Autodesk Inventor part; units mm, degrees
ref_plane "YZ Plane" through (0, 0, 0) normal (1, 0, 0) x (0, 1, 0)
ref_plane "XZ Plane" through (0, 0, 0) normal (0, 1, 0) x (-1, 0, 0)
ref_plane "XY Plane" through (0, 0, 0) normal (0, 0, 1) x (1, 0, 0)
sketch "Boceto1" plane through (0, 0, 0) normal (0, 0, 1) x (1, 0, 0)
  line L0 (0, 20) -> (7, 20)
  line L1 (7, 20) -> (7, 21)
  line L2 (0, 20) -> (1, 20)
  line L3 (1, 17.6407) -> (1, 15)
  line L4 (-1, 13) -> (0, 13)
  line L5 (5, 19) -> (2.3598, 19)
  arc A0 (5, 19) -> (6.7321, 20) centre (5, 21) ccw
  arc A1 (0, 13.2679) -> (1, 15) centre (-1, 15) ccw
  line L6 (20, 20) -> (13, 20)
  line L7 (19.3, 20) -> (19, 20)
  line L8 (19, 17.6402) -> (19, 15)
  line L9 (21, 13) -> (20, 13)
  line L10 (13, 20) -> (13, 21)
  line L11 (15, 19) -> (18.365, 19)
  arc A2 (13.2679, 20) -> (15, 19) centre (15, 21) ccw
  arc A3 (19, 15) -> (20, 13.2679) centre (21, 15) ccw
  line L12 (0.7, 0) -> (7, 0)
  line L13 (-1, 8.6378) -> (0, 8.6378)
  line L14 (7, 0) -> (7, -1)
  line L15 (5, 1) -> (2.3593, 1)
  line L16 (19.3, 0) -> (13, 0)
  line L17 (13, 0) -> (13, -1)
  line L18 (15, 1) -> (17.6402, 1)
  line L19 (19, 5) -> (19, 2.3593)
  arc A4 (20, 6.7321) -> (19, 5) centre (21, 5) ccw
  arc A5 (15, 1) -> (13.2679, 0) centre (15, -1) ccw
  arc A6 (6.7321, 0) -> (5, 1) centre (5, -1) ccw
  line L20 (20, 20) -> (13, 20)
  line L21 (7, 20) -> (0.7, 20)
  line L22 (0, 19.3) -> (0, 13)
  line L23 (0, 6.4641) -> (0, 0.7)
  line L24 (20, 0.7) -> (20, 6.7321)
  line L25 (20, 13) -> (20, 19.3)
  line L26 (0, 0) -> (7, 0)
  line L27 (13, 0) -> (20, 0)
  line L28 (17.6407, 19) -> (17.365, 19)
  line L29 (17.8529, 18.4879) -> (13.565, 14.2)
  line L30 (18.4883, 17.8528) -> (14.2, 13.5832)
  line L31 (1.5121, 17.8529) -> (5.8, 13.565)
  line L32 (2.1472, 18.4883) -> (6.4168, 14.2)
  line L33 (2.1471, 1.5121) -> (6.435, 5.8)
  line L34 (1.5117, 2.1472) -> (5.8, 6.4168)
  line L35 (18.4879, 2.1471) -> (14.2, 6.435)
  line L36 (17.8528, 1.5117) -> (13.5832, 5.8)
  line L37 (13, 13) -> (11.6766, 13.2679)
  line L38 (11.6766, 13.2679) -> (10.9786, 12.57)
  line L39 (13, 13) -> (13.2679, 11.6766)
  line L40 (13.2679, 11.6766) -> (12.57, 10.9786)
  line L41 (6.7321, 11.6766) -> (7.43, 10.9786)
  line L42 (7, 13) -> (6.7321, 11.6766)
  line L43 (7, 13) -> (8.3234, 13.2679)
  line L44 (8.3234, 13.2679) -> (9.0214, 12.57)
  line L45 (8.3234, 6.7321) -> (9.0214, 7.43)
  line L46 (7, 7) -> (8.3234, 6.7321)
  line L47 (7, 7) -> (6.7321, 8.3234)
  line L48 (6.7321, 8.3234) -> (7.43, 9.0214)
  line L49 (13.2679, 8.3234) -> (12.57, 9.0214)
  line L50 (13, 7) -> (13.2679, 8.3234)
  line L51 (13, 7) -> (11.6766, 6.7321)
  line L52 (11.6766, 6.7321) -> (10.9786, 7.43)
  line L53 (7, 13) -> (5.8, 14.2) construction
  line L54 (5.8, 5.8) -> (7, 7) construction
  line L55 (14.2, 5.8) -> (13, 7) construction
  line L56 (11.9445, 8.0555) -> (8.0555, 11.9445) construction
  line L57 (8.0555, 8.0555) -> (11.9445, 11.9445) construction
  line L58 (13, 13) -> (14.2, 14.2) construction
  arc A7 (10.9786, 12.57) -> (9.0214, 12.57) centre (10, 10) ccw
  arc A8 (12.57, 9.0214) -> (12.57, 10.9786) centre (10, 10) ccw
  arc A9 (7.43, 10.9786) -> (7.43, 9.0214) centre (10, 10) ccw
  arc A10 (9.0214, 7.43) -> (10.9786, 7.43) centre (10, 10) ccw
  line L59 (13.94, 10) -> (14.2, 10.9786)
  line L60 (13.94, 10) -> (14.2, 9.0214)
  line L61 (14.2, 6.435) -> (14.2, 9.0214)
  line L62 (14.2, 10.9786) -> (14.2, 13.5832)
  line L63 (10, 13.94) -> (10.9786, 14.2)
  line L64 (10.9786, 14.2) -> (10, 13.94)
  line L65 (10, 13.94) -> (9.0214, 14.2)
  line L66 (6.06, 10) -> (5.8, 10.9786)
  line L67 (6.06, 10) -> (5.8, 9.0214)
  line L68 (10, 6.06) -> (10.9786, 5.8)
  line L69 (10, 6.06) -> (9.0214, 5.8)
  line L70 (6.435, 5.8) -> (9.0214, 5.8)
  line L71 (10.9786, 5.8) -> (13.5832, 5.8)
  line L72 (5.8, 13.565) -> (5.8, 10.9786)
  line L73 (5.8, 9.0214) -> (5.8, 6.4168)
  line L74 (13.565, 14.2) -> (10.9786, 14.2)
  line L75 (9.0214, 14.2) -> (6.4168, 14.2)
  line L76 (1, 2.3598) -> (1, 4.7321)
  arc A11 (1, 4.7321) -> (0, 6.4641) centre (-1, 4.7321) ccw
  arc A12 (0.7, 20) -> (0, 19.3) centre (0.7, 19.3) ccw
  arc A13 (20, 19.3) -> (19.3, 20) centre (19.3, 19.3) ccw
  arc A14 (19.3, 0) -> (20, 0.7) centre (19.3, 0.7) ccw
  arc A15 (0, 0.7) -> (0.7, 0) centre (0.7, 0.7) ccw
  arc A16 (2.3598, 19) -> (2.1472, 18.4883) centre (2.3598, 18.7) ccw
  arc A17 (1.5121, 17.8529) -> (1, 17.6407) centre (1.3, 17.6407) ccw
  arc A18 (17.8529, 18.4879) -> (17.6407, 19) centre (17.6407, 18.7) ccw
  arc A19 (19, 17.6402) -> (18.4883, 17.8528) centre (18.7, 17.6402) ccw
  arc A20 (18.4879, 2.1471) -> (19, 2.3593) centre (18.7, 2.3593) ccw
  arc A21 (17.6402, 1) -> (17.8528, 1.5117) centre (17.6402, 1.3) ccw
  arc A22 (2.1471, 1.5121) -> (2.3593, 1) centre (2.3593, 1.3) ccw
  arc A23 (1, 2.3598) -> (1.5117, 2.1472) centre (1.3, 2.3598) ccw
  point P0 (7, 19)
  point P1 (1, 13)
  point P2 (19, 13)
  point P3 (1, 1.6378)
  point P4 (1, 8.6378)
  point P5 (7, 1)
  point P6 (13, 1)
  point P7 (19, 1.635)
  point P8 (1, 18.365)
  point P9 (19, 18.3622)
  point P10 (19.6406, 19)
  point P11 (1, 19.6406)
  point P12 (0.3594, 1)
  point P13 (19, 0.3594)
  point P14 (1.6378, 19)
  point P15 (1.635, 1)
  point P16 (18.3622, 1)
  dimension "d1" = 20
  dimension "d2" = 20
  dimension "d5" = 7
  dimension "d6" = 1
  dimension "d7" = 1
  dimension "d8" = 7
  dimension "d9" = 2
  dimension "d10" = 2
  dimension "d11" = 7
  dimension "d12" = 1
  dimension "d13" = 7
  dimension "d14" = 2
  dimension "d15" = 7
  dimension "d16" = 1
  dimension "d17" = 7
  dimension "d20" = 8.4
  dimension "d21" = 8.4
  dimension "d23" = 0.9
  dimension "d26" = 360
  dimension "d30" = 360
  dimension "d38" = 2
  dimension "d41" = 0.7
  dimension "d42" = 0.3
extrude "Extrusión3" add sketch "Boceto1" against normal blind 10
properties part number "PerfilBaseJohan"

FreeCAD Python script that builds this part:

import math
import FreeCAD as App
import Part
import Sketcher

V = App.Vector
Q = App.Units.Quantity

doc = App.newDocument("Part")
body = doc.addObject("PartDesign::Body", "Body")

# Sketch on XY plane
sketch1 = body.newObject("Sketcher::SketchObject", "Sketch")
sketch1.AttachmentSupport = (doc.getObject("XY_Plane"), [""])
sketch1.MapMode = "FlatFace"
sketch1.addGeometry([
    Part.LineSegment(V(6.7321, 20, 0), V(0.7, 20, 0)),  # 0
    Part.ArcOfCircle(Part.Circle(V(0.7, 19.3, 0), V(0, 0, 1), 0.7), math.radians(90), math.radians(180)),  # 1
    Part.LineSegment(V(0, 19.3, 0), V(0, 13.2679, 0)),  # 2
    Part.ArcOfCircle(Part.Circle(V(-1, 15, 0), V(0, 0, 1), 2.000043), math.radians(-60.000705), math.radians(0)),  # 3
    Part.LineSegment(V(1, 15, 0), V(1, 17.6407, 0)),  # 4
    Part.ArcOfCircle(Part.Circle(V(1.3, 17.6407, 0), V(0, 0, 1), 0.300025), math.radians(45.013504), math.radians(180)),  # 5
    Part.LineSegment(V(1.5121, 17.8529, 0), V(5.8, 13.565, 0)),  # 6
    Part.LineSegment(V(5.8, 13.565, 0), V(5.8, 10.9786, 0)),  # 7
    Part.LineSegment(V(5.8, 10.9786, 0), V(6.06, 10, 0)),  # 8
    Part.LineSegment(V(6.06, 10, 0), V(5.8, 9.0214, 0)),  # 9
    Part.LineSegment(V(5.8, 9.0214, 0), V(5.8, 6.4168, 0)),  # 10
    Part.LineSegment(V(5.8, 6.4168, 0), V(1.5117, 2.1472, 0)),  # 11
    Part.ArcOfCircle(Part.Circle(V(1.3, 2.3598, 0), V(0, 0, 1), 0.3), math.radians(180), math.radians(314.878468)),  # 12
    Part.LineSegment(V(1, 2.3598, 0), V(1, 4.7321, 0)),  # 13
    Part.ArcOfCircle(Part.Circle(V(-1, 4.7321, 0), V(0, 0, 1), 2), math.radians(0), math.radians(59.999272)),  # 14
    Part.LineSegment(V(0, 6.4641, 0), V(0, 0.7, 0)),  # 15
    Part.ArcOfCircle(Part.Circle(V(0.7, 0.7, 0), V(0, 0, 1), 0.7), math.radians(180), math.radians(270)),  # 16
    Part.LineSegment(V(0.7, 0, 0), V(6.7321, 0, 0)),  # 17
    Part.ArcOfCircle(Part.Circle(V(5, -1, 0), V(0, 0, 1), 2.000043), math.radians(29.999295), math.radians(90)),  # 18
    Part.LineSegment(V(5, 1, 0), V(2.3593, 1, 0)),  # 19
    Part.ArcOfCircle(Part.Circle(V(2.3593, 1.3, 0), V(0, 0, 1), 0.300025), math.radians(135.013504), math.radians(270)),  # 20
    Part.LineSegment(V(2.1471, 1.5121, 0), V(6.435, 5.8, 0)),  # 21
    Part.LineSegment(V(6.435, 5.8, 0), V(9.0214, 5.8, 0)),  # 22
    Part.LineSegment(V(9.0214, 5.8, 0), V(10, 6.06, 0)),  # 23
    Part.LineSegment(V(10, 6.06, 0), V(10.9786, 5.8, 0)),  # 24
    Part.LineSegment(V(10.9786, 5.8, 0), V(13.5832, 5.8, 0)),  # 25
    Part.LineSegment(V(13.5832, 5.8, 0), V(17.8528, 1.5117, 0)),  # 26
    Part.ArcOfCircle(Part.Circle(V(17.6402, 1.3, 0), V(0, 0, 1), 0.3), math.radians(-90), math.radians(44.878468)),  # 27
    Part.LineSegment(V(17.6402, 1, 0), V(15, 1, 0)),  # 28
    Part.ArcOfCircle(Part.Circle(V(15, -1, 0), V(0, 0, 1), 2), math.radians(90), math.radians(150.000705)),  # 29
    Part.LineSegment(V(13.2679, 0, 0), V(19.3, 0, 0)),  # 30
    Part.ArcOfCircle(Part.Circle(V(19.3, 0.7, 0), V(0, 0, 1), 0.7), math.radians(-90), math.radians(0)),  # 31
    Part.LineSegment(V(20, 0.7, 0), V(20, 6.7321, 0)),  # 32
    Part.ArcOfCircle(Part.Circle(V(21, 5, 0), V(0, 0, 1), 2.000043), math.radians(119.999295), math.radians(180)),  # 33
    Part.LineSegment(V(19, 5, 0), V(19, 2.3593, 0)),  # 34
    Part.ArcOfCircle(Part.Circle(V(18.7, 2.3593, 0), V(0, 0, 1), 0.300025), math.radians(-134.986496), math.radians(0)),  # 35
    Part.LineSegment(V(18.4879, 2.1471, 0), V(14.2, 6.435, 0)),  # 36
    Part.LineSegment(V(14.2, 6.435, 0), V(14.2, 9.0214, 0)),  # 37
    Part.LineSegment(V(14.2, 9.0214, 0), V(13.94, 10, 0)),  # 38
    Part.LineSegment(V(13.94, 10, 0), V(14.2, 10.9786, 0)),  # 39
    Part.LineSegment(V(14.2, 10.9786, 0), V(14.2, 13.5832, 0)),  # 40
    Part.LineSegment(V(14.2, 13.5832, 0), V(18.4883, 17.8528, 0)),  # 41
    Part.ArcOfCircle(Part.Circle(V(18.7, 17.6402, 0), V(0, 0, 1), 0.3), math.radians(0), math.radians(134.878468)),  # 42
    Part.LineSegment(V(19, 17.6402, 0), V(19, 15, 0)),  # 43
    Part.ArcOfCircle(Part.Circle(V(21, 15, 0), V(0, 0, 1), 2), math.radians(180), math.radians(240.000705)),  # 44
    Part.LineSegment(V(20, 13.2679, 0), V(20, 19.3, 0)),  # 45
    Part.ArcOfCircle(Part.Circle(V(19.3, 19.3, 0), V(0, 0, 1), 0.7), math.radians(0), math.radians(90)),  # 46
    Part.LineSegment(V(19.3, 20, 0), V(13.2679, 20, 0)),  # 47
    Part.ArcOfCircle(Part.Circle(V(15, 21, 0), V(0, 0, 1), 2.000043), math.radians(-150.000705), math.radians(-90)),  # 48
    Part.LineSegment(V(15, 19, 0), V(17.6407, 19, 0)),  # 49
    Part.ArcOfCircle(Part.Circle(V(17.6407, 18.7, 0), V(0, 0, 1), 0.300025), math.radians(-44.986496), math.radians(90)),  # 50
    Part.LineSegment(V(17.8529, 18.4879, 0), V(13.565, 14.2, 0)),  # 51
    Part.LineSegment(V(13.565, 14.2, 0), V(10.9786, 14.2, 0)),  # 52
    Part.LineSegment(V(10.9786, 14.2, 0), V(10, 13.94, 0)),  # 53
    Part.LineSegment(V(10, 13.94, 0), V(9.0214, 14.2, 0)),  # 54
    Part.LineSegment(V(9.0214, 14.2, 0), V(6.4168, 14.2, 0)),  # 55
    Part.LineSegment(V(6.4168, 14.2, 0), V(2.1472, 18.4883, 0)),  # 56
    Part.ArcOfCircle(Part.Circle(V(2.3598, 18.7, 0), V(0, 0, 1), 0.3), math.radians(90), math.radians(224.878468)),  # 57
    Part.LineSegment(V(2.3598, 19, 0), V(5, 19, 0)),  # 58
    Part.ArcOfCircle(Part.Circle(V(5, 21, 0), V(0, 0, 1), 2), math.radians(-90), math.radians(-29.999295)),  # 59
    Part.LineSegment(V(11.6766, 13.2679, 0), V(13, 13, 0)),  # 60
    Part.LineSegment(V(13, 13, 0), V(13.2679, 11.6766, 0)),  # 61
    Part.LineSegment(V(13.2679, 11.6766, 0), V(12.57, 10.9786, 0)),  # 62
    Part.ArcOfCircle(Part.Circle(V(10, 10, 0), V(0, 0, 1), 2.750011), math.radians(-20.845743), math.radians(20.845743)),  # 63
    Part.LineSegment(V(12.57, 9.0214, 0), V(13.2679, 8.3234, 0)),  # 64
    Part.LineSegment(V(13.2679, 8.3234, 0), V(13, 7, 0)),  # 65
    Part.LineSegment(V(13, 7, 0), V(11.6766, 6.7321, 0)),  # 66
    Part.LineSegment(V(11.6766, 6.7321, 0), V(10.9786, 7.43, 0)),  # 67
    Part.ArcOfCircle(Part.Circle(V(10, 10, 0), V(0, 0, 1), 2.750011), math.radians(-110.845743), math.radians(-69.154257)),  # 68
    Part.LineSegment(V(9.0214, 7.43, 0), V(8.3234, 6.7321, 0)),  # 69
    Part.LineSegment(V(8.3234, 6.7321, 0), V(7, 7, 0)),  # 70
    Part.LineSegment(V(7, 7, 0), V(6.7321, 8.3234, 0)),  # 71
    Part.LineSegment(V(6.7321, 8.3234, 0), V(7.43, 9.0214, 0)),  # 72
    Part.ArcOfCircle(Part.Circle(V(10, 10, 0), V(0, 0, 1), 2.750011), math.radians(159.154257), math.radians(200.845743)),  # 73
    Part.LineSegment(V(7.43, 10.9786, 0), V(6.7321, 11.6766, 0)),  # 74
    Part.LineSegment(V(6.7321, 11.6766, 0), V(7, 13, 0)),  # 75
    Part.LineSegment(V(7, 13, 0), V(8.3234, 13.2679, 0)),  # 76
    Part.LineSegment(V(8.3234, 13.2679, 0), V(9.0214, 12.57, 0)),  # 77
    Part.ArcOfCircle(Part.Circle(V(10, 10, 0), V(0, 0, 1), 2.750011), math.radians(69.154257), math.radians(110.845743)),  # 78
    Part.LineSegment(V(10.9786, 12.57, 0), V(11.6766, 13.2679, 0)),  # 79
], False)
sketch1.addConstraint([
    Sketcher.Constraint("Tangent", 0, 2, 1, 1),
    Sketcher.Constraint("Tangent", 1, 2, 2, 1),
    Sketcher.Constraint("Coincident", 2, 2, 3, 1),
    Sketcher.Constraint("Tangent", 3, 2, 4, 1),
    Sketcher.Constraint("Tangent", 4, 2, 5, 2),
    Sketcher.Constraint("Tangent", 5, 1, 6, 1),
    Sketcher.Constraint("Coincident", 6, 2, 7, 1),
    Sketcher.Constraint("Coincident", 7, 2, 8, 1),
    Sketcher.Constraint("Coincident", 8, 2, 9, 1),
    Sketcher.Constraint("Coincident", 9, 2, 10, 1),
    Sketcher.Constraint("Coincident", 10, 2, 11, 1),
    Sketcher.Constraint("Tangent", 11, 2, 12, 2),
    Sketcher.Constraint("Tangent", 12, 1, 13, 1),
    Sketcher.Constraint("Tangent", 13, 2, 14, 1),
    Sketcher.Constraint("Coincident", 14, 2, 15, 1),
    Sketcher.Constraint("Tangent", 15, 2, 16, 1),
    Sketcher.Constraint("Tangent", 16, 2, 17, 1),
    Sketcher.Constraint("Coincident", 17, 2, 18, 1),
    Sketcher.Constraint("Tangent", 18, 2, 19, 1),
    Sketcher.Constraint("Tangent", 19, 2, 20, 2),
    Sketcher.Constraint("Tangent", 20, 1, 21, 1),
    Sketcher.Constraint("Coincident", 21, 2, 22, 1),
    Sketcher.Constraint("Coincident", 22, 2, 23, 1),
    Sketcher.Constraint("Coincident", 23, 2, 24, 1),
    Sketcher.Constraint("Coincident", 24, 2, 25, 1),
    Sketcher.Constraint("Coincident", 25, 2, 26, 1),
    Sketcher.Constraint("Tangent", 26, 2, 27, 2),
    Sketcher.Constraint("Tangent", 27, 1, 28, 1),
    Sketcher.Constraint("Tangent", 28, 2, 29, 1),
    Sketcher.Constraint("Coincident", 29, 2, 30, 1),
    Sketcher.Constraint("Tangent", 30, 2, 31, 1),
    Sketcher.Constraint("Tangent", 31, 2, 32, 1),
    Sketcher.Constraint("Coincident", 32, 2, 33, 1),
    Sketcher.Constraint("Tangent", 33, 2, 34, 1),
    Sketcher.Constraint("Tangent", 34, 2, 35, 2),
    Sketcher.Constraint("Tangent", 35, 1, 36, 1),
    Sketcher.Constraint("Coincident", 36, 2, 37, 1),
    Sketcher.Constraint("Coincident", 37, 2, 38, 1),
    Sketcher.Constraint("Coincident", 38, 2, 39, 1),
    Sketcher.Constraint("Coincident", 39, 2, 40, 1),
    Sketcher.Constraint("Coincident", 40, 2, 41, 1),
    Sketcher.Constraint("Tangent", 41, 2, 42, 2),
    Sketcher.Constraint("Tangent", 42, 1, 43, 1),
    Sketcher.Constraint("Tangent", 43, 2, 44, 1),
    Sketcher.Constraint("Coincident", 44, 2, 45, 1),
    Sketcher.Constraint("Tangent", 45, 2, 46, 1),
    Sketcher.Constraint("Tangent", 46, 2, 47, 1),
    Sketcher.Constraint("Coincident", 47, 2, 48, 1),
    Sketcher.Constraint("Tangent", 48, 2, 49, 1),
    Sketcher.Constraint("Tangent", 49, 2, 50, 2),
    Sketcher.Constraint("Tangent", 50, 1, 51, 1),
    Sketcher.Constraint("Coincident", 51, 2, 52, 1),
    Sketcher.Constraint("Coincident", 52, 2, 53, 1),
    Sketcher.Constraint("Coincident", 53, 2, 54, 1),
    Sketcher.Constraint("Coincident", 54, 2, 55, 1),
    Sketcher.Constraint("Coincident", 55, 2, 56, 1),
    Sketcher.Constraint("Tangent", 56, 2, 57, 2),
    Sketcher.Constraint("Tangent", 57, 1, 58, 1),
    Sketcher.Constraint("Tangent", 58, 2, 59, 1),
    Sketcher.Constraint("Coincident", 59, 2, 0, 1),
    Sketcher.Constraint("Coincident", 60, 2, 61, 1),
    Sketcher.Constraint("Coincident", 61, 2, 62, 1),
    Sketcher.Constraint("Coincident", 62, 2, 63, 2),
    Sketcher.Constraint("Coincident", 63, 1, 64, 1),
    Sketcher.Constraint("Coincident", 64, 2, 65, 1),
    Sketcher.Constraint("Coincident", 65, 2, 66, 1),
    Sketcher.Constraint("Coincident", 66, 2, 67, 1),
    Sketcher.Constraint("Coincident", 67, 2, 68, 2),
    Sketcher.Constraint("Coincident", 68, 1, 69, 1),
    Sketcher.Constraint("Coincident", 69, 2, 70, 1),
    Sketcher.Constraint("Coincident", 70, 2, 71, 1),
    Sketcher.Constraint("Coincident", 71, 2, 72, 1),
    Sketcher.Constraint("Coincident", 72, 2, 73, 2),
    Sketcher.Constraint("Coincident", 73, 1, 74, 1),
    Sketcher.Constraint("Coincident", 74, 2, 75, 1),
    Sketcher.Constraint("Coincident", 75, 2, 76, 1),
    Sketcher.Constraint("Coincident", 76, 2, 77, 1),
    Sketcher.Constraint("Coincident", 77, 2, 78, 2),
    Sketcher.Constraint("Coincident", 78, 1, 79, 1),
    Sketcher.Constraint("Coincident", 79, 2, 60, 1),
    Sketcher.Constraint("Horizontal", 0),
    Sketcher.Constraint("Vertical", 2),
    Sketcher.Constraint("Vertical", 4),
    Sketcher.Constraint("Vertical", 7),
    Sketcher.Constraint("Vertical", 10),
    Sketcher.Constraint("Vertical", 13),
    Sketcher.Constraint("Vertical", 15),
    Sketcher.Constraint("Horizontal", 17),
    Sketcher.Constraint("Horizontal", 19),
    Sketcher.Constraint("Horizontal", 22),
    Sketcher.Constraint("Horizontal", 25),
    Sketcher.Constraint("Horizontal", 28),
    Sketcher.Constraint("Horizontal", 30),
    Sketcher.Constraint("Vertical", 32),
    Sketcher.Constraint("Vertical", 34),
    Sketcher.Constraint("Vertical", 37),
    Sketcher.Constraint("Vertical", 40),
    Sketcher.Constraint("Vertical", 43),
    Sketcher.Constraint("Vertical", 45),
    Sketcher.Constraint("Horizontal", 47),
    Sketcher.Constraint("Horizontal", 49),
    Sketcher.Constraint("Horizontal", 52),
    Sketcher.Constraint("Horizontal", 55),
    Sketcher.Constraint("Horizontal", 58),
    Sketcher.Constraint("Coincident", 68, 3, 63, 3),
    Sketcher.Constraint("Coincident", 73, 3, 63, 3),
    Sketcher.Constraint("Coincident", 78, 3, 63, 3),
    Sketcher.Constraint("Equal", 5, 12),
    Sketcher.Constraint("Equal", 3, 14),
    Sketcher.Constraint("Equal", 1, 16),
    Sketcher.Constraint("Equal", 14, 18),
    Sketcher.Constraint("Equal", 12, 20),
    Sketcher.Constraint("Equal", 20, 27),
    Sketcher.Constraint("Equal", 18, 29),
    Sketcher.Constraint("Equal", 16, 31),
    Sketcher.Constraint("Equal", 29, 33),
    Sketcher.Constraint("Equal", 27, 35),
    Sketcher.Constraint("Equal", 35, 42),
    Sketcher.Constraint("Equal", 33, 44),
    Sketcher.Constraint("Equal", 31, 46),
    Sketcher.Constraint("Equal", 44, 48),
    Sketcher.Constraint("Equal", 42, 50),
    Sketcher.Constraint("Equal", 50, 57),
    Sketcher.Constraint("Equal", 48, 59),
    Sketcher.Constraint("Equal", 63, 68),
    Sketcher.Constraint("Equal", 68, 73),
    Sketcher.Constraint("Equal", 73, 78),
    Sketcher.Constraint("PointOnObject", 1, 2, -2),
    Sketcher.Constraint("PointOnObject", 14, 2, -2),
    Sketcher.Constraint("PointOnObject", 16, 2, -1),
    Sketcher.Constraint("PointOnObject", 29, 2, -1),
    Sketcher.Constraint("Perpendicular", 6, 21),
    Sketcher.Constraint("Perpendicular", 8, 23),
    Sketcher.Constraint("Perpendicular", 9, 24),
    Sketcher.Constraint("Perpendicular", 11, 26),
    Sketcher.Constraint("Perpendicular", 21, 36),
    Sketcher.Constraint("Perpendicular", 23, 38),
    Sketcher.Constraint("Perpendicular", 24, 39),
    Sketcher.Constraint("Perpendicular", 26, 41),
    Sketcher.Constraint("Perpendicular", 36, 51),
    Sketcher.Constraint("Perpendicular", 38, 53),
    Sketcher.Constraint("Perpendicular", 39, 54),
    Sketcher.Constraint("Perpendicular", 41, 56),
    Sketcher.Constraint("Parallel", 51, 62),
    Sketcher.Constraint("Perpendicular", 62, 64),
    Sketcher.Constraint("Perpendicular", 60, 65),
    Sketcher.Constraint("Perpendicular", 61, 66),
    Sketcher.Constraint("Parallel", 64, 67),
    Sketcher.Constraint("Perpendicular", 67, 69),
    Sketcher.Constraint("Perpendicular", 65, 70),
    Sketcher.Constraint("Perpendicular", 66, 71),
    Sketcher.Constraint("Parallel", 69, 72),
    Sketcher.Constraint("Perpendicular", 72, 74),
    Sketcher.Constraint("Perpendicular", 70, 75),
    Sketcher.Constraint("Perpendicular", 71, 76),
    Sketcher.Constraint("Parallel", 74, 77),
    Sketcher.Constraint("Perpendicular", 77, 79),
    Sketcher.Constraint("Horizontal", 20, 3, 27, 3),
    Sketcher.Constraint("Horizontal", 3, 3, 44, 3),
    Sketcher.Constraint("Horizontal", 1, 3, 46, 3),
    Sketcher.Constraint("Horizontal", 50, 3, 57, 3),
    Sketcher.Constraint("Horizontal", 78, 3, 8, 2),
    Sketcher.Constraint("Horizontal", 22, 2, 24, 2),
    Sketcher.Constraint("Horizontal", 11, 2, 35, 1),
    Sketcher.Constraint("Horizontal", 9, 2, 37, 2),
    Sketcher.Constraint("Horizontal", 8, 2, 38, 2),
    Sketcher.Constraint("Horizontal", 7, 2, 39, 2),
    Sketcher.Constraint("Horizontal", 5, 1, 41, 2),
    Sketcher.Constraint("Horizontal", 2, 2, 44, 2),
    Sketcher.Constraint("Horizontal", 52, 2, 54, 2),
    Sketcher.Constraint("Horizontal", 39, 2, 62, 2),
    Sketcher.Constraint("Horizontal", 37, 2, 63, 1),
    Sketcher.Constraint("Horizontal", 32, 2, 66, 2),
    Sketcher.Constraint("Horizontal", 67, 2, 68, 1),
    Sketcher.Constraint("Horizontal", 66, 2, 69, 2),
    Sketcher.Constraint("Horizontal", 65, 2, 70, 2),
    Sketcher.Constraint("Horizontal", 64, 2, 71, 2),
    Sketcher.Constraint("Horizontal", 63, 1, 72, 2),
    Sketcher.Constraint("Horizontal", 62, 2, 73, 1),
    Sketcher.Constraint("Horizontal", 61, 2, 74, 2),
    Sketcher.Constraint("Horizontal", 60, 2, 75, 2),
    Sketcher.Constraint("Horizontal", 44, 2, 76, 2),
    Sketcher.Constraint("Horizontal", 77, 2, 78, 1),
    Sketcher.Constraint("Vertical", 5, 3, 12, 3),
    Sketcher.Constraint("Vertical", 35, 3, 42, 3),
    Sketcher.Constraint("Vertical", 31, 3, 46, 3),
    Sketcher.Constraint("Vertical", 29, 3, 48, 3),
    Sketcher.Constraint("Vertical", 18, 3, 59, 3),
    Sketcher.Constraint("Vertical", 7, 2, 9, 2),
    Sketcher.Constraint("Vertical", 78, 3, 23, 2),
    Sketcher.Constraint("Vertical", 37, 2, 39, 2),
    Sketcher.Constraint("Vertical", 29, 2, 47, 2),
    Sketcher.Constraint("Vertical", 26, 2, 50, 1),
    Sketcher.Constraint("Vertical", 24, 2, 52, 2),
    Sketcher.Constraint("Vertical", 23, 2, 53, 2),
    Sketcher.Constraint("Vertical", 20, 1, 56, 2),
    Sketcher.Constraint("Vertical", 47, 2, 61, 2),
    Sketcher.Constraint("Vertical", 61, 2, 64, 2),
    Sketcher.Constraint("Vertical", 60, 2, 65, 2),
    Sketcher.Constraint("Vertical", 52, 2, 67, 2),
    Sketcher.Constraint("Vertical", 59, 2, 71, 2),
    Sketcher.Constraint("Vertical", 71, 2, 74, 2),
    Sketcher.Constraint("Vertical", 69, 2, 76, 2),
    Sketcher.Constraint("Equal", 17, 30),
    Sketcher.Constraint("Equal", 19, 49),
    Sketcher.Constraint("Equal", 22, 52),
    Sketcher.Constraint("Equal", 47, 2),
    Sketcher.Constraint("Equal", 49, 4),
    Sketcher.Constraint("Equal", 52, 7),
    Sketcher.Constraint("Equal", 55, 10),
    Sketcher.Constraint("Equal", 2, 32),
    Sketcher.Constraint("Equal", 7, 37),
    Sketcher.Constraint("Equal", 6, 21),
    Sketcher.Constraint("Equal", 9, 23),
    Sketcher.Constraint("Equal", 60, 61),
    Sketcher.Constraint("Radius", 3, Q("2 mm")),
    Sketcher.Constraint("Radius", 1, Q("0.7 mm")),
    Sketcher.Constraint("Radius", 5, Q("0.3 mm")),
    Sketcher.Constraint("DistanceX", 3, 3, -1, 1, Q("1 mm")),
    Sketcher.Constraint("DistanceY", -1, 1, 0, 2, Q("20 mm")),
    Sketcher.Constraint("DistanceY", -1, 1, 65, 2, Q("7 mm")),
    Sketcher.Constraint("Radius", 63, Q("2.75 mm")),
    Sketcher.Constraint("DistanceY", -1, 1, 3, 3, Q("15 mm")),
    Sketcher.Constraint("DistanceX", -1, 1, 6, 2, Q("5.8 mm")),
    Sketcher.Constraint("Angle", 8, Q("-75.121 deg")),
    Sketcher.Constraint("DistanceY", 15, 2, 15, 1, Q("5.764 mm")),
    Sketcher.Constraint("DistanceX", -1, 1, 8, 2, Q("6.06 mm")),
    Sketcher.Constraint("DistanceX", 19, 2, 19, 1, Q("2.6407 mm")),
    Sketcher.Constraint("DistanceX", 25, 1, 25, 2, Q("2.6046 mm")),
])
pad1 = body.newObject("PartDesign::Pad", "Pad")
pad1.Profile = sketch1
pad1.Length = 10
pad1.Reversed = True

doc.recompute()
